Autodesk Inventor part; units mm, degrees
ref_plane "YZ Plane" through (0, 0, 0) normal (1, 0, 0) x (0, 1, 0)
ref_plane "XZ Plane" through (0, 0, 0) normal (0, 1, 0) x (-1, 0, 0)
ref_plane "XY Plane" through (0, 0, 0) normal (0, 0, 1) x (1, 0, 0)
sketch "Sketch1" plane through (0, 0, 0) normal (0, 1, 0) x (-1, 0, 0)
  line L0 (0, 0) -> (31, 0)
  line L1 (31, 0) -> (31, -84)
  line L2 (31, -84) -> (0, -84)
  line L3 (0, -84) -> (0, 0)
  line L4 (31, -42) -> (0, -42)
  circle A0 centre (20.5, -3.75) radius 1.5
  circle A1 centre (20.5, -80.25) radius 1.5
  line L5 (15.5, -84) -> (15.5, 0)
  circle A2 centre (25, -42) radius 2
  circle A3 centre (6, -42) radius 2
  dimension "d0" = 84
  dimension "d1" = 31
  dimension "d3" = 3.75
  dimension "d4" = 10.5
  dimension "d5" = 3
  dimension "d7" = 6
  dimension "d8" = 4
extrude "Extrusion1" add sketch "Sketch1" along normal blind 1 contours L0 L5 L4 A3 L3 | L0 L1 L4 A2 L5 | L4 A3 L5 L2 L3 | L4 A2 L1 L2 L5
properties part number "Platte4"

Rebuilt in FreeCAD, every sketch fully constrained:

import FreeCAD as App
import Part
import Sketcher

doc = App.newDocument("Part")
body = doc.addObject("PartDesign::Body", "Body")

# Sketch on XZ plane
sketch1 = doc.addObject("Sketcher::SketchObject", "Sketch")
body.addObject(sketch1)
sketch1.AttachmentSupport = (doc.XZ_Plane, [""])
sketch1.MapMode = "FlatFace"
sketch1.addGeometry([
    Part.LineSegment(App.Vector(0, 0, 0), App.Vector(0, -84, 0)),  # 0
    Part.LineSegment(App.Vector(0, -84, 0), App.Vector(-31, -84, 0)),  # 1
    Part.LineSegment(App.Vector(-31, -84, 0), App.Vector(-31, 0, 0)),  # 2
    Part.LineSegment(App.Vector(-31, 0, 0), App.Vector(0, 0, 0)),  # 3
    Part.Circle(App.Vector(-6, -42, 0), App.Vector(0, 0, 1), 2),  # 4
    Part.Circle(App.Vector(-25, -42, 0), App.Vector(0, 0, 1), 2),  # 5
    Part.Circle(App.Vector(-20.5, -3.8, 0), App.Vector(0, 0, 1), 1.5),  # 6
    Part.Circle(App.Vector(-20.5, -80.2, 0), App.Vector(0, 0, 1), 1.5),  # 7
], False)
sketch1.addConstraint([
    Sketcher.Constraint("Coincident", 0, 2, 1, 1),
    Sketcher.Constraint("Coincident", 1, 2, 2, 1),
    Sketcher.Constraint("Coincident", 2, 2, 3, 1),
    Sketcher.Constraint("Coincident", 3, 2, 0, 1),
    Sketcher.Constraint("Vertical", 0),
    Sketcher.Constraint("Horizontal", 1),
    Sketcher.Constraint("Vertical", 2),
    Sketcher.Constraint("Horizontal", 3),
    Sketcher.Constraint("Coincident", 3, 2, -1, 1),
    Sketcher.Constraint("Equal", 4, 5),
    Sketcher.Constraint("Equal", 6, 7),
    Sketcher.Constraint("Horizontal", 4, 3, 5, 3),
    Sketcher.Constraint("Vertical", 6, 3, 7, 3),
    Sketcher.Constraint("Diameter", 4, 4.0),
    Sketcher.Constraint("Diameter", 6, 3.0),
    Sketcher.Constraint("DistanceX", 1, 2, 1, 1, 31.0),
    Sketcher.Constraint("DistanceY", 0, 2, 0, 1, 84.0),
    Sketcher.Constraint("DistanceX", 4, 3, -1, 1, 6.0),
    Sketcher.Constraint("DistanceX", 1, 2, 5, 3, 6.0),
    Sketcher.Constraint("DistanceX", 1, 2, 7, 3, 10.5),
    Sketcher.Constraint("DistanceY", 6, 3, -1, 1, 3.75),
    Sketcher.Constraint("DistanceY", 0, 2, 7, 3, 3.75),
    Sketcher.Constraint("DistanceY", 4, 3, -1, 1, 42.0),
])
pad1 = doc.addObject("PartDesign::Pad", "Pad")
body.addObject(pad1)
pad1.Profile = sketch1
pad1.Length = 1
pad1.Reversed = True

doc.recompute()
